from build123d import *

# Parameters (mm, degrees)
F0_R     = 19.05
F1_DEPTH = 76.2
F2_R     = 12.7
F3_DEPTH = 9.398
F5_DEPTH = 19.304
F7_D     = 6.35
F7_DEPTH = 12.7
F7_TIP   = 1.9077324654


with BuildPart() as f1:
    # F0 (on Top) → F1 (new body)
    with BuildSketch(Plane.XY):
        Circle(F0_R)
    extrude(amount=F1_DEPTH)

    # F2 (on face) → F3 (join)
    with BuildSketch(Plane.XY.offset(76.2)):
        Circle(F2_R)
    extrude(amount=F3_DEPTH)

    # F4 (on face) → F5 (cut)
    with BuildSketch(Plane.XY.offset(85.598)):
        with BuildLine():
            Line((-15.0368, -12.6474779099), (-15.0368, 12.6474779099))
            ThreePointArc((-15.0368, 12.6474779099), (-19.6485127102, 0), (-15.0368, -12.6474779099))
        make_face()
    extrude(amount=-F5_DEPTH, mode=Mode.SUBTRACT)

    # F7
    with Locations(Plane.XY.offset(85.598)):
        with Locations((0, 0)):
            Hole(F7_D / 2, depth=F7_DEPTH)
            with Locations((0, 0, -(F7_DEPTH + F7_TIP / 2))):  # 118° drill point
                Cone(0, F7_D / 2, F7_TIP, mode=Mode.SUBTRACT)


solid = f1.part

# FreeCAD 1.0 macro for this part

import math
import FreeCAD as App
import Part
import Sketcher
Q = App.Units.Quantity

doc = App.newDocument("Part")
params = doc.addObject("Spreadsheet::Sheet", "Params")
for row, (alias, value) in enumerate([
    ("sketch1_diameter", "1.5 in"),
    ("pad1_length", "3 in"),
    ("sketch2_diameter", "1 in"),
    ("pad2_length", "0.37 in"),
    ("pocket1_length", "0.76 in"),
    ("sketch4_diameter", "0.25 in"),
    ("hole_diameter", "0.25 in"),
    ("hole_depth", "0.5 in"),
], start=1):
    params.set(f"A{row}", alias)
    params.set(f"B{row}", "=" + value)
    params.setAlias(f"B{row}", alias)

body = doc.addObject("PartDesign::Body", "Body")

# Sketch on XY plane
sketch1 = body.newObject("Sketcher::SketchObject", "Sketch")
sketch1.AttachmentSupport = (doc.getObject("XY_Plane"), [""])
sketch1.MapMode = "FlatFace"
sketch1.addGeometry(Part.Circle(App.Vector(0, 0, 0), App.Vector(0, 0, 1), 19), False)
sketch1.addConstraint(Sketcher.Constraint("Coincident", 0, 3, -1, 1))
sketch1.addConstraint(Sketcher.Constraint("Diameter", 0, Q("1.5 in")))
sketch1.setExpression("Constraints[1]", "Params.sketch1_diameter")
pad1 = body.newObject("PartDesign::Pad", "Pad")
pad1.Profile = sketch1
pad1.setExpression("Length", "Params.pad1_length")

# Sketch on XY plane
sketch2 = body.newObject("Sketcher::SketchObject", "Sketch001")
sketch2.AttachmentSupport = (doc.getObject("XY_Plane"), [""])
sketch2.MapMode = "FlatFace"
sketch2.AttachmentOffset = App.Placement(App.Vector(0, 0, 3 * 25.4), App.Rotation())
sketch2.addGeometry(Part.Circle(App.Vector(0, 0, 0), App.Vector(0, 0, 1), 13), False)
sketch2.addConstraint(Sketcher.Constraint("Coincident", 0, 3, -1, 1))
sketch2.addConstraint(Sketcher.Constraint("Diameter", 0, Q("1 in")))
sketch2.setExpression("Constraints[1]", "Params.sketch2_diameter")
pad2 = body.newObject("PartDesign::Pad", "Pad001")
pad2.Profile = sketch2
pad2.setExpression("Length", "Params.pad2_length")

# Sketch on XY plane
sketch3 = body.newObject("Sketcher::SketchObject", "Sketch002")
sketch3.AttachmentSupport = (doc.getObject("XY_Plane"), [""])
sketch3.MapMode = "FlatFace"
sketch3.AttachmentOffset = App.Placement(App.Vector(0, 0, 3.37 * 25.4), App.Rotation())
sketch3.addGeometry(Part.LineSegment(App.Vector(-15, -13, 0), App.Vector(-15, 13, 0)), False)
sketch3.addGeometry(Part.ArcOfCircle(Part.Circle(App.Vector(0, 0, 0), App.Vector(0, 0, 1), 20), math.radians(140), math.radians(220)), False)
sketch3.addConstraint(Sketcher.Constraint("Coincident", 0, 1, 1, 2))
sketch3.addConstraint(Sketcher.Constraint("Coincident", 1, 1, 0, 2))
sketch3.addConstraint(Sketcher.Constraint("Vertical", 0))
sketch3.addConstraint(Sketcher.Constraint("Coincident", 1, 3, -1, 1))
sketch3.addConstraint(Sketcher.Constraint("DistanceX", 0, 1, -1, 1, Q("0.592 in")))
sketch3.addConstraint(Sketcher.Constraint("Radius", 1, Q("19.648513 mm")))
pocket1 = body.newObject("PartDesign::Pocket", "Pocket")
pocket1.Profile = sketch3
pocket1.setExpression("Length", "Params.pocket1_length")

# Sketch on XY plane
sketch4 = body.newObject("Sketcher::SketchObject", "Sketch003")
sketch4.AttachmentSupport = (doc.getObject("XY_Plane"), [""])
sketch4.MapMode = "FlatFace"
sketch4.AttachmentOffset = App.Placement(App.Vector(0, 0, 3.37 * 25.4), App.Rotation())
sketch4.addGeometry(Part.Circle(App.Vector(0, 0, 0), App.Vector(0, 0, 1), 3.2), False)
sketch4.addConstraint(Sketcher.Constraint("Coincident", 0, 3, -1, 1))
sketch4.addConstraint(Sketcher.Constraint("Diameter", 0, Q("0.25 in")))
sketch4.setExpression("Constraints[1]", "Params.sketch4_diameter")
doc.recompute()
hole = body.newObject("PartDesign::Hole", "Hole")
hole.Profile = sketch4
hole.ThreadType = "None"
hole.setExpression("Diameter", "Params.hole_diameter")
hole.DepthType = "Dimension"
hole.setExpression("Depth", "Params.hole_depth")
hole.DrillPoint = "Angled"
hole.DrillPointAngle = 118

doc.recompute()
